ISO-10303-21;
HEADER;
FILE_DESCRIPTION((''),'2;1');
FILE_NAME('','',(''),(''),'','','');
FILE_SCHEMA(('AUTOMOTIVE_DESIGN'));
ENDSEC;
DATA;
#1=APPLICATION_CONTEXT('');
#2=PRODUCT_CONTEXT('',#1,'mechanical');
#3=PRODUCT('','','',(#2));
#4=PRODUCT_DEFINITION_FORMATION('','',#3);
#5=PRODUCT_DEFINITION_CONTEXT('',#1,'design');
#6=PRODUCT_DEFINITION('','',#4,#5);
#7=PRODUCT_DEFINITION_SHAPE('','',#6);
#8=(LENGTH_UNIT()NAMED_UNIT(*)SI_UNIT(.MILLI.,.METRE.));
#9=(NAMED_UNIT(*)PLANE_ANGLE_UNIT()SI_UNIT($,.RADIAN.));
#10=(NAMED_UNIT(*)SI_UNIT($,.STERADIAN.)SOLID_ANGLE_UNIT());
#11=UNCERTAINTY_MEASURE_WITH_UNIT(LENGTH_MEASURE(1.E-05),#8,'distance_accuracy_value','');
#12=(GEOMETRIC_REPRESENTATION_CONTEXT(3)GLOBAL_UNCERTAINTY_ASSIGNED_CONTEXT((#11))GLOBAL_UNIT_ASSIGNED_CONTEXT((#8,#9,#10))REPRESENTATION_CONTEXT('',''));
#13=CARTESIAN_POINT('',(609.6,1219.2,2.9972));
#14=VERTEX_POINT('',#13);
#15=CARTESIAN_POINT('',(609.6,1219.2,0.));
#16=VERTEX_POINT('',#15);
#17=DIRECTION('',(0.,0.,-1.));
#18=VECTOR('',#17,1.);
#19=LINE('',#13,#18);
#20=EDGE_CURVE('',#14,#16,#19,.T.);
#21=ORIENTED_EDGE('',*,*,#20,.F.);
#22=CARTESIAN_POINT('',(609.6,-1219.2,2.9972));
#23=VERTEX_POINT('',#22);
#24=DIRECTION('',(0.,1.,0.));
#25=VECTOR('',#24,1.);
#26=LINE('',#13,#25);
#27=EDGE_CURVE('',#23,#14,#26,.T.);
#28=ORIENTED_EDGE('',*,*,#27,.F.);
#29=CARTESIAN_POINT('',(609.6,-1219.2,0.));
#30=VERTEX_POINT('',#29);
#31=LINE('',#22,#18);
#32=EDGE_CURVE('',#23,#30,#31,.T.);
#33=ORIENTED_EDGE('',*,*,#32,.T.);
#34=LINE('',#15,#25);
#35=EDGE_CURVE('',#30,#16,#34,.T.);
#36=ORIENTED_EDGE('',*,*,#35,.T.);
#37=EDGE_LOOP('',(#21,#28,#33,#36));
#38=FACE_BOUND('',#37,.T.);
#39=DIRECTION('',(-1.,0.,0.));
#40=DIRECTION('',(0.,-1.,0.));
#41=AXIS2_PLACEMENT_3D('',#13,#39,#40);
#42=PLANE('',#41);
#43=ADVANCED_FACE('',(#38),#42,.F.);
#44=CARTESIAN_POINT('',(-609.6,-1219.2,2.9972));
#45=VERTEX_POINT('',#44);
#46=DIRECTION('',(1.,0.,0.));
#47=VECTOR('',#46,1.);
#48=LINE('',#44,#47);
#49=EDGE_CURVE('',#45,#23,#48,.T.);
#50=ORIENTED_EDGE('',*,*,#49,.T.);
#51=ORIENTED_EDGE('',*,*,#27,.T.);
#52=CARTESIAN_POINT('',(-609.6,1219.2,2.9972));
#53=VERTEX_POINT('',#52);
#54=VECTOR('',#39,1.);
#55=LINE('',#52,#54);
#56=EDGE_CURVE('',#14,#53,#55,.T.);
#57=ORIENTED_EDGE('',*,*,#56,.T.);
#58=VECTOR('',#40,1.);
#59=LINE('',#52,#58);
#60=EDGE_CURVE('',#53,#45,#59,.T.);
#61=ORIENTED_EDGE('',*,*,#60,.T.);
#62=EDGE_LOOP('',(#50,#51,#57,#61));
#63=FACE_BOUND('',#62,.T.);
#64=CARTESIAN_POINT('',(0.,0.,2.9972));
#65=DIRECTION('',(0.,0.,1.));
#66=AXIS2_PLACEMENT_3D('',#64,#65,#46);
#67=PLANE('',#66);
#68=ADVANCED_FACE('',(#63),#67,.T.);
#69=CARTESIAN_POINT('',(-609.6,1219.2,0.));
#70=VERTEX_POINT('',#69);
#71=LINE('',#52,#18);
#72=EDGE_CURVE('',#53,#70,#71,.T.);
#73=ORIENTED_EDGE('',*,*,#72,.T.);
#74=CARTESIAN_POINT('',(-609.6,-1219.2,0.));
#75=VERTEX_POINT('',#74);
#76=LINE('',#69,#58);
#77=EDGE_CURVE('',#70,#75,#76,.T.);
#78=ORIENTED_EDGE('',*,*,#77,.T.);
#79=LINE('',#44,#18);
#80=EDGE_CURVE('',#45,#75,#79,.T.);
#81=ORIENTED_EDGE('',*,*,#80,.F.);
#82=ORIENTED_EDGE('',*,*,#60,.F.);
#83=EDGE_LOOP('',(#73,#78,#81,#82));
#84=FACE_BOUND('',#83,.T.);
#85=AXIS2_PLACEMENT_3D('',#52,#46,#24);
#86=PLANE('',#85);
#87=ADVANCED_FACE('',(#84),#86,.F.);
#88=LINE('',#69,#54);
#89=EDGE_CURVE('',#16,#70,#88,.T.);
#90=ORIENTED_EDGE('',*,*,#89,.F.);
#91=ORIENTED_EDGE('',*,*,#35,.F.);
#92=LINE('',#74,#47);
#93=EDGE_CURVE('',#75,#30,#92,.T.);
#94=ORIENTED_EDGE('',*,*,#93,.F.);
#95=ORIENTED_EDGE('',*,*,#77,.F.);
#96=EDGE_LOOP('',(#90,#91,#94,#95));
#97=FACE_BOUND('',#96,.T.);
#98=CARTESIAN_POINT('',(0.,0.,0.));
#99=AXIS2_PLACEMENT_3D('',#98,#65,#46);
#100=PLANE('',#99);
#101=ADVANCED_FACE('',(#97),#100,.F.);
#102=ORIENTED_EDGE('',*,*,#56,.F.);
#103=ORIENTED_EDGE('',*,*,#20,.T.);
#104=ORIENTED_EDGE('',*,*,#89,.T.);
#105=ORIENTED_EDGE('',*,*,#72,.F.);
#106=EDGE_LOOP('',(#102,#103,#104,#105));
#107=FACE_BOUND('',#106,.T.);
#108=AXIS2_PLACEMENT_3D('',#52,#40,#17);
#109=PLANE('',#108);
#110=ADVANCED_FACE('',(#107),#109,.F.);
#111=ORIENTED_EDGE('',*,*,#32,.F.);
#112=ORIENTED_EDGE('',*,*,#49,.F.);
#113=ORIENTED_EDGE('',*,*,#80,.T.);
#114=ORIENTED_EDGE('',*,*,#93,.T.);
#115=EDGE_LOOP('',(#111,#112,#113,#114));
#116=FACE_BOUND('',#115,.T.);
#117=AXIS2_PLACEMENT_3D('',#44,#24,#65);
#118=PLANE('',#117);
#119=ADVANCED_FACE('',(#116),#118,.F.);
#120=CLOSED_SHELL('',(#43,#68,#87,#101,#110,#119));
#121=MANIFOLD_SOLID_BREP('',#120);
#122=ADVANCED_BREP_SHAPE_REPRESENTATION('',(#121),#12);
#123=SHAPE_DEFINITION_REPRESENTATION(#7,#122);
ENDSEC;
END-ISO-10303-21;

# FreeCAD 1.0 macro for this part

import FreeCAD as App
import Part
import Sketcher

V = App.Vector
Q = App.Units.Quantity

doc = App.newDocument("Part")
body = doc.addObject("PartDesign::Body", "Body")

sketch1 = body.newObject("Sketcher::SketchObject", "Sketch")
sketch1.AttachmentSupport = (doc.getObject("XY_Plane"), [""])
sketch1.MapMode = "FlatFace"
sketch1.addGeometry([
    Part.LineSegment(V(-609.6, 1219.2, 0), V(-609.6, -1219.2, 0)),
    Part.LineSegment(V(-609.6, -1219.2, 0), V(609.6, -1219.2, 0)),
    Part.LineSegment(V(609.6, -1219.2, 0), V(609.6, 1219.2, 0)),
    Part.LineSegment(V(609.6, 1219.2, 0), V(-609.6, 1219.2, 0)),
], False)
sketch1.addConstraint([
    Sketcher.Constraint("Coincident", 0, 2, 1, 1),
    Sketcher.Constraint("Coincident", 1, 2, 2, 1),
    Sketcher.Constraint("Coincident", 2, 2, 3, 1),
    Sketcher.Constraint("Coincident", 3, 2, 0, 1),
    Sketcher.Constraint("Vertical", 0),
    Sketcher.Constraint("Horizontal", 1),
    Sketcher.Constraint("Vertical", 2),
    Sketcher.Constraint("Horizontal", 3),
    Sketcher.Constraint("Symmetric", 0, 2, 2, 2, -1, 1),
    Sketcher.Constraint("DistanceX", 1, 1, 1, 2, Q("48 in")),
    Sketcher.Constraint("DistanceY", 0, 2, 0, 1, Q("96 in")),
])
pad1 = body.newObject("PartDesign::Pad", "Pad")
pad1.Profile = sketch1
pad1.Length = Q("0.118 in")

doc.recompute()
